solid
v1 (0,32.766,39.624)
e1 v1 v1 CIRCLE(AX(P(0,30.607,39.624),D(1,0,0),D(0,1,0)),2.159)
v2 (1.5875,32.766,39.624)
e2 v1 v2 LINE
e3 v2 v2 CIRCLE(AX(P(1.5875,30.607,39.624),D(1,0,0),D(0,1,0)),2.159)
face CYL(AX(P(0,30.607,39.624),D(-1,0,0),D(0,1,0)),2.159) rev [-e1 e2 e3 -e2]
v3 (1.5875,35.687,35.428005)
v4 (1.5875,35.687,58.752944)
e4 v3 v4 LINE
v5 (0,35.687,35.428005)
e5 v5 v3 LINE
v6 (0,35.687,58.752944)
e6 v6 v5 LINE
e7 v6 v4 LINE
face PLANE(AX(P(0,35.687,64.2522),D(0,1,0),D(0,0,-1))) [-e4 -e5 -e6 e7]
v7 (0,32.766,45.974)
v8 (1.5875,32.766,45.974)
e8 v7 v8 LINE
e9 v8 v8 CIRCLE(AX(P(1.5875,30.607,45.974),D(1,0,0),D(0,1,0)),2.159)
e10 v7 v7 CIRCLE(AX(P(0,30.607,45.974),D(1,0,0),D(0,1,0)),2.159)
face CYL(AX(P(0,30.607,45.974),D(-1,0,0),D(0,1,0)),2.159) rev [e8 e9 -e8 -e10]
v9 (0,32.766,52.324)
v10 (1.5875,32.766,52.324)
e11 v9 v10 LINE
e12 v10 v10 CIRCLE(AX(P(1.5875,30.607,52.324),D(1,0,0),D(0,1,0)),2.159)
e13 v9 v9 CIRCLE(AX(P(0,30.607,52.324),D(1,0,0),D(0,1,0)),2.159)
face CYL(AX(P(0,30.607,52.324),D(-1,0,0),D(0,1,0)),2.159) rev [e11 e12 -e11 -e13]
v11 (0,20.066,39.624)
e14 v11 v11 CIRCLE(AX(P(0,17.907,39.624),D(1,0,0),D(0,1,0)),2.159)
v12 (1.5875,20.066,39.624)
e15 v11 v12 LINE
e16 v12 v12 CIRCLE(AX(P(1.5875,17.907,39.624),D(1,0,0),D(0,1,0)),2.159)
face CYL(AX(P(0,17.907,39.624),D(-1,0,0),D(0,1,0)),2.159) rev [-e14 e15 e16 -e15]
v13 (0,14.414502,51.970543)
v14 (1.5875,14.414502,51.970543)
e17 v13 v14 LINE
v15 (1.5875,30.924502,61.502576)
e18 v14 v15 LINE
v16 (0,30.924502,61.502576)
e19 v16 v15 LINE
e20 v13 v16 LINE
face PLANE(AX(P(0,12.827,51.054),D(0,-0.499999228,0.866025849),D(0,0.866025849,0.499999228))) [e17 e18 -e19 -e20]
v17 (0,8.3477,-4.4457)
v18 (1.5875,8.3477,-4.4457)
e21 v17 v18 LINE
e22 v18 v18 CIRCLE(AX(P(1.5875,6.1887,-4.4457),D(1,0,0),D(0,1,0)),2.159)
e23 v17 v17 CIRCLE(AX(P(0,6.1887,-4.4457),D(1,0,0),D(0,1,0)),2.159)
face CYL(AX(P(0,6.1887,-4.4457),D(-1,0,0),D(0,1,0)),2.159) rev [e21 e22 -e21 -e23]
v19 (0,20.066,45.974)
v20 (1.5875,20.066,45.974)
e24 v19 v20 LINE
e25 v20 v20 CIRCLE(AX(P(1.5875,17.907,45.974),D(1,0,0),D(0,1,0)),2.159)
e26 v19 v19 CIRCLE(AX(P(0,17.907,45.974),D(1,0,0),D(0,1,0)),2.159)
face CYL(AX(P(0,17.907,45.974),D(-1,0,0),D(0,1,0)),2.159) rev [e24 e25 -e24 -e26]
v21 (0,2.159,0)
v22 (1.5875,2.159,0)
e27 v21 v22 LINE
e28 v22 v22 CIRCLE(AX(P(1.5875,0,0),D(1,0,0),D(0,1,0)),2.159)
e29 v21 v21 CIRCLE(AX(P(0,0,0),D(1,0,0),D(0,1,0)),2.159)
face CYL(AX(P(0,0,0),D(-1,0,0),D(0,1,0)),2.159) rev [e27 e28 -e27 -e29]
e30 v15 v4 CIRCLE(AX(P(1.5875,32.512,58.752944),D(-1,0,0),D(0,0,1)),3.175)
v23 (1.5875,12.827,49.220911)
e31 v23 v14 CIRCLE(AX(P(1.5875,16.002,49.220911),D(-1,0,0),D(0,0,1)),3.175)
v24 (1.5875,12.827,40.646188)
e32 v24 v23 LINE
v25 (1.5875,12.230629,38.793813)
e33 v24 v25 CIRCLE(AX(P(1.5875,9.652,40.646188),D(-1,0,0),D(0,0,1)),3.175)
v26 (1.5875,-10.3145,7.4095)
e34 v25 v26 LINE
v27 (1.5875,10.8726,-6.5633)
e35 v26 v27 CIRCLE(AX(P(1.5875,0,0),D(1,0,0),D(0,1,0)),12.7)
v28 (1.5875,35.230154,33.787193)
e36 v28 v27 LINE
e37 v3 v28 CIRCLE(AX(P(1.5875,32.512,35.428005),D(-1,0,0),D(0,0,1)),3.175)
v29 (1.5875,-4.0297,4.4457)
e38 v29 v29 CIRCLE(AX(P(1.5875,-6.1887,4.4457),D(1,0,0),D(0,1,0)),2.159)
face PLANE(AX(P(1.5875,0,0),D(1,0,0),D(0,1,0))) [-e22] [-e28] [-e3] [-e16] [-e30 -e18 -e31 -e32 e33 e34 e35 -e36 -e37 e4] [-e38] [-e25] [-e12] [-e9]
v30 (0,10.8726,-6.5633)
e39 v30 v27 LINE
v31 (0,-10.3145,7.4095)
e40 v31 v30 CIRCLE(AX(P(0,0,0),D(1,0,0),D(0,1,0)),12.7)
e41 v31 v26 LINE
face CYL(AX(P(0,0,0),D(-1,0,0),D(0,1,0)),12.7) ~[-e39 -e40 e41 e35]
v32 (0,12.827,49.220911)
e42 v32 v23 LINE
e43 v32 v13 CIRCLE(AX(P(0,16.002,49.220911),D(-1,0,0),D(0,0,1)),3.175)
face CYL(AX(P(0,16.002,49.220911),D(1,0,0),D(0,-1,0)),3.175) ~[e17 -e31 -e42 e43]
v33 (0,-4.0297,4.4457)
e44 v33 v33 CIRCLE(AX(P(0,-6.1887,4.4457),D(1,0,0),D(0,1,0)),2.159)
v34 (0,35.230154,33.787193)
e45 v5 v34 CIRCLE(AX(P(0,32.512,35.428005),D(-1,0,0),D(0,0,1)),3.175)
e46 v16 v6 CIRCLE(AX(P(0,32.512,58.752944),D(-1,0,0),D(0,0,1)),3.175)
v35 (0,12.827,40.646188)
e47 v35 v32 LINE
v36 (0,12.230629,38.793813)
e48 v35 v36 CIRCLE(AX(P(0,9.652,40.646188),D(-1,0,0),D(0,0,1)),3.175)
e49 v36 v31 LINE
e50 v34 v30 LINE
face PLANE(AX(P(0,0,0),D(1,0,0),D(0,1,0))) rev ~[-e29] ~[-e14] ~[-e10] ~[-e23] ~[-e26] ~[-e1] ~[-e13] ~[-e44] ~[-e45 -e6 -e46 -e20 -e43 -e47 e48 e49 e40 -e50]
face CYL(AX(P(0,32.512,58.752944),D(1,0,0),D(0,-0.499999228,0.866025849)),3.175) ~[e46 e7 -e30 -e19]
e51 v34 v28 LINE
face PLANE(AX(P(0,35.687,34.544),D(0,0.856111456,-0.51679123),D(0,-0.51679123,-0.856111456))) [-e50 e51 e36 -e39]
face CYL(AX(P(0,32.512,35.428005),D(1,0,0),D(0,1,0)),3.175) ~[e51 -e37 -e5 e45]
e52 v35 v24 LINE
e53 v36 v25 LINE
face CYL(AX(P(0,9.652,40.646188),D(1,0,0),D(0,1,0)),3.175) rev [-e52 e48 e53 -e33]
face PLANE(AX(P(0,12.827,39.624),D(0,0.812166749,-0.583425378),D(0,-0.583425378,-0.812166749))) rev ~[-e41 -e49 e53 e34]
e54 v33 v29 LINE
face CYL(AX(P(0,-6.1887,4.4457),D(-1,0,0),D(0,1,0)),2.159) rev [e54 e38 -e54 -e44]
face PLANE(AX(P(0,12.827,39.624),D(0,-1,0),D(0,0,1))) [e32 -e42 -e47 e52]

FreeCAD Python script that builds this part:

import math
import FreeCAD as App
import Part
import Sketcher

V = App.Vector
Q = App.Units.Quantity


def edges_at(feature, points):
    """Names of the edges that pass closest to the given points."""
    edges = feature.Shape.Edges
    near = lambda p: min(range(len(edges)), key=lambda i: edges[i].distToShape(Part.Vertex(*p))[0])
    return sorted({f"Edge{near(p) + 1}" for p in points})

doc = App.newDocument("Part")
body = doc.addObject("PartDesign::Body", "Body")

# Sketch on YZ plane
sketch1 = body.newObject("Sketcher::SketchObject", "Sketch")
sketch1.AttachmentSupport = (doc.getObject("YZ_Plane"), [""])
sketch1.MapMode = "FlatFace"
sketch1.addGeometry([
    Part.LineSegment(V(12.827, 51.054, 0), V(12.827, 39.624, 0)),  # 0
    Part.LineSegment(V(12.827, 39.624, 0), V(-10.3145, 7.4095, 0)),  # 1
    Part.ArcOfCircle(Part.Circle(V(0, 0, 0), V(0, 0, 1), 12.7), math.radians(144.308134), math.radians(328.882507)),  # 2
    Part.LineSegment(V(10.8726, -6.5633, 0), V(35.687, 34.544, 0)),  # 3
    Part.LineSegment(V(35.687, 34.544, 0), V(35.687, 64.2522, 0)),  # 4
    Part.LineSegment(V(35.687, 64.2522, 0), V(12.827, 51.054, 0)),  # 5
    Part.Circle(V(17.907, 39.624, 0), V(0, 0, 1), 2.159),  # 6
    Part.Circle(V(30.607, 39.624, 0), V(0, 0, 1), 2.159),  # 7
    Part.Circle(V(17.907, 45.974, 0), V(0, 0, 1), 2.159),  # 8
    Part.Circle(V(30.607, 45.974, 0), V(0, 0, 1), 2.159),  # 9
    Part.Circle(V(30.607, 52.324, 0), V(0, 0, 1), 2.159),  # 10
    Part.Circle(V(6.1887, -4.4457, 0), V(0, 0, 1), 2.159),  # 11
    Part.Circle(V(0, 0, 0), V(0, 0, 1), 2.159),  # 12
    Part.Circle(V(-6.1887, 4.4457, 0), V(0, 0, 1), 2.159),  # 13
], False)
sketch1.addConstraint([
    Sketcher.Constraint("Coincident", 0, 2, 1, 1),
    Sketcher.Constraint("Tangent", 1, 2, 2, 1),
    Sketcher.Constraint("Tangent", 2, 2, 3, 1),
    Sketcher.Constraint("Coincident", 3, 2, 4, 1),
    Sketcher.Constraint("Coincident", 4, 2, 5, 1),
    Sketcher.Constraint("Coincident", 5, 2, 0, 1),
    Sketcher.Constraint("Vertical", 0),
    Sketcher.Constraint("Vertical", 4),
    Sketcher.Constraint("Coincident", 2, 3, -1, 1),
    Sketcher.Constraint("Coincident", 12, 3, -1, 1),
    Sketcher.Constraint("Equal", 6, 7),
    Sketcher.Constraint("Equal", 7, 8),
    Sketcher.Constraint("Equal", 8, 9),
    Sketcher.Constraint("Equal", 9, 10),
    Sketcher.Constraint("Equal", 10, 11),
    Sketcher.Constraint("Equal", 11, 12),
    Sketcher.Constraint("Equal", 12, 13),
    Sketcher.Constraint("Symmetric", 11, 3, 13, 3, -1, 1),
    Sketcher.Constraint("Horizontal", 6, 3, 7, 3),
    Sketcher.Constraint("Horizontal", 8, 3, 9, 3),
    Sketcher.Constraint("Horizontal", 7, 3, 0, 2),
    Sketcher.Constraint("Vertical", 6, 3, 8, 3),
    Sketcher.Constraint("Vertical", 7, 3, 9, 3),
    Sketcher.Constraint("Vertical", 9, 3, 10, 3),
    Sketcher.Constraint("Radius", 2, Q("0.5 in")),
    Sketcher.Constraint("Diameter", 6, Q("0.17 in")),
    Sketcher.Constraint("DistanceY", 0, 2, 0, 1, Q("0.45 in")),
    Sketcher.Constraint("DistanceX", 6, 3, 7, 3, Q("0.5 in")),
    Sketcher.Constraint("DistanceY", 7, 3, 10, 3, Q("0.5 in")),
    Sketcher.Constraint("DistanceX", 0, 2, 6, 3, Q("0.2 in")),
    Sketcher.Constraint("DistanceX", 7, 3, 3, 2, Q("0.2 in")),
    Sketcher.Constraint("DistanceY", 3, 2, 7, 3, Q("0.2 in")),
    Sketcher.Constraint("DistanceY", 8, 3, 5, 2, Q("0.2 in")),
    Sketcher.Constraint("DistanceY", -1, 1, 6, 3, Q("1.56 in")),
    Sketcher.Constraint("DistanceX", -1, 1, 0, 2, Q("0.505 in")),
    Sketcher.Constraint("Angle", 5, Q("-150 deg")),
    Sketcher.Constraint("DistanceX", 13, 3, 11, 3, Q("0.4873 in")),
    Sketcher.Constraint("DistanceY", 11, 3, -1, 1, Q("4.4457 mm")),
])
pad1 = body.newObject("PartDesign::Pad", "Pad")
pad1.Profile = sketch1
pad1.Length = Q("0.0625 in")
doc.recompute()

fillet = body.newObject("PartDesign::Fillet", "Fillet")
fillet.Base = (pad1, edges_at(pad1, [
    (0.794, 12.827, 39.624),
    (0.794, 35.687, 34.544),
    (0.794, 35.687, 64.252),
    (0.794, 12.827, 51.054),
]))
fillet.Radius = Q("0.125 in")

doc.recompute()
